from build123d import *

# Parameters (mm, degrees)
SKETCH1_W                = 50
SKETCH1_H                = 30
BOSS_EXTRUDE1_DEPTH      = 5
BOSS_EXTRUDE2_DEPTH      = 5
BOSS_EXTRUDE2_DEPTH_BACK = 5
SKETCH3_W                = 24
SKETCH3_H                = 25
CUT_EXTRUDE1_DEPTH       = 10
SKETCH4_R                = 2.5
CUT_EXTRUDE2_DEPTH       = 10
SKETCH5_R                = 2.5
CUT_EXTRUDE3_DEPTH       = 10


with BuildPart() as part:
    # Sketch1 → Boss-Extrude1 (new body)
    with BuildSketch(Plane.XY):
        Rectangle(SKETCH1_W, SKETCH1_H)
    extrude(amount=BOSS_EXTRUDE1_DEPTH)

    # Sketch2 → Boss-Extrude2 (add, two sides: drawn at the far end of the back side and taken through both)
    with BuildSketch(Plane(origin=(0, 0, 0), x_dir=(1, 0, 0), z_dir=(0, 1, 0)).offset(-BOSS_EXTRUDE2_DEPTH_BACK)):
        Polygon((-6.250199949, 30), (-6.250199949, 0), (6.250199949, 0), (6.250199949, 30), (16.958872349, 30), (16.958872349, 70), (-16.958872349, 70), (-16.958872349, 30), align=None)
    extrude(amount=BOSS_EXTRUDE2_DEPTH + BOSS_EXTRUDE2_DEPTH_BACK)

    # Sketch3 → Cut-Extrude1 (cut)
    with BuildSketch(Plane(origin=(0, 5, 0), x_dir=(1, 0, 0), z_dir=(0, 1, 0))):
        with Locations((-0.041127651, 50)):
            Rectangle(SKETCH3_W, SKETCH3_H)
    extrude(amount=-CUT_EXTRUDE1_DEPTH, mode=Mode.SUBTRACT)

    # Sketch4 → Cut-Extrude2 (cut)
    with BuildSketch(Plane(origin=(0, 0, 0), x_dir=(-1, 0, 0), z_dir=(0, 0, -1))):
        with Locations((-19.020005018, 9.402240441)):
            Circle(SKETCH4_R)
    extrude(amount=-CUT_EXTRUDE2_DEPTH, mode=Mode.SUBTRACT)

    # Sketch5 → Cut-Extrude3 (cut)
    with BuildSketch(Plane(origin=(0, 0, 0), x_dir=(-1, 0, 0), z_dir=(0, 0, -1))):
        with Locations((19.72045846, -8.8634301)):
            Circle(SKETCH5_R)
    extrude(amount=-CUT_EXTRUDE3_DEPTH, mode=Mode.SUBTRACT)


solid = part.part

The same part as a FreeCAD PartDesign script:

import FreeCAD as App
import Part
import Sketcher

doc = App.newDocument("Part")
body = doc.addObject("PartDesign::Body", "Body")

# Sketch on XY plane
sketch1 = doc.addObject("Sketcher::SketchObject", "Sketch")
body.addObject(sketch1)
sketch1.AttachmentSupport = (doc.XY_Plane, [""])
sketch1.MapMode = "FlatFace"
sketch1.addGeometry([
    Part.LineSegment(App.Vector(-25, 15, 0), App.Vector(-25, -15, 0)),
    Part.LineSegment(App.Vector(-25, -15, 0), App.Vector(25, -15, 0)),
    Part.LineSegment(App.Vector(25, -15, 0), App.Vector(25, 15, 0)),
    Part.LineSegment(App.Vector(25, 15, 0), App.Vector(-25, 15, 0)),
], False)
sketch1.addConstraint([
    Sketcher.Constraint("Coincident", 0, 2, 1, 1),
    Sketcher.Constraint("Coincident", 1, 2, 2, 1),
    Sketcher.Constraint("Coincident", 2, 2, 3, 1),
    Sketcher.Constraint("Coincident", 3, 2, 0, 1),
    Sketcher.Constraint("Vertical", 0),
    Sketcher.Constraint("Horizontal", 1),
    Sketcher.Constraint("Vertical", 2),
    Sketcher.Constraint("Horizontal", 3),
    Sketcher.Constraint("Symmetric", 0, 2, 2, 2, -1, 1),
    Sketcher.Constraint("DistanceX", 1, 1, 1, 2, 50.0),
    Sketcher.Constraint("DistanceY", 0, 2, 0, 1, 30.0),
])
pad1 = doc.addObject("PartDesign::Pad", "Pad")
body.addObject(pad1)
pad1.Profile = sketch1
pad1.Length = 5

# Sketch on XZ plane
sketch2 = doc.addObject("Sketcher::SketchObject", "Sketch001")
body.addObject(sketch2)
sketch2.AttachmentSupport = (doc.XZ_Plane, [""])
sketch2.MapMode = "FlatFace"
sketch2.addGeometry([
    Part.LineSegment(App.Vector(-6, -30, 0), App.Vector(-6, 0, 0)),  # 0
    Part.LineSegment(App.Vector(-6, 0, 0), App.Vector(6, 0, 0)),  # 1
    Part.LineSegment(App.Vector(6, 0, 0), App.Vector(6, -30, 0)),  # 2
    Part.LineSegment(App.Vector(6, -30, 0), App.Vector(17, -30, 0)),  # 3
    Part.LineSegment(App.Vector(17, -30, 0), App.Vector(17, -70, 0)),  # 4
    Part.LineSegment(App.Vector(17, -70, 0), App.Vector(-17, -70, 0)),  # 5
    Part.LineSegment(App.Vector(-17, -70, 0), App.Vector(-17, -30, 0)),  # 6
    Part.LineSegment(App.Vector(-17, -30, 0), App.Vector(-6, -30, 0)),  # 7
], False)
sketch2.addConstraint([
    Sketcher.Constraint("Coincident", 0, 2, 1, 1),
    Sketcher.Constraint("Coincident", 1, 2, 2, 1),
    Sketcher.Constraint("Coincident", 2, 2, 3, 1),
    Sketcher.Constraint("Coincident", 3, 2, 4, 1),
    Sketcher.Constraint("Coincident", 4, 2, 5, 1),
    Sketcher.Constraint("Coincident", 5, 2, 6, 1),
    Sketcher.Constraint("Coincident", 6, 2, 7, 1),
    Sketcher.Constraint("Coincident", 7, 2, 0, 1),
    Sketcher.Constraint("Vertical", 0),
    Sketcher.Constraint("Horizontal", 1),
    Sketcher.Constraint("Vertical", 2),
    Sketcher.Constraint("Horizontal", 3),
    Sketcher.Constraint("Vertical", 4),
    Sketcher.Constraint("Horizontal", 5),
    Sketcher.Constraint("Vertical", 6),
    Sketcher.Constraint("Horizontal", 7),
    Sketcher.Constraint("Symmetric", 0, 2, 1, 2, -1, 1),
    Sketcher.Constraint("Symmetric", 3, 2, 6, 2, -2),
    Sketcher.Constraint("DistanceY", 0, 1, 0, 2, 30.0),
    Sketcher.Constraint("DistanceY", 4, 2, 4, 1, 40.0),
    Sketcher.Constraint("DistanceX", 1, 1, 1, 2, 12.5004),
    Sketcher.Constraint("DistanceX", 3, 1, 3, 2, 10.708672),
])
pad2 = doc.addObject("PartDesign::Pad", "Pad001")
body.addObject(pad2)
pad2.Profile = sketch2
pad2.Type = "TwoLengths"
pad2.Length = 5
pad2.Length2 = 5
pad2.Reversed = True

# Sketch on XZ plane
sketch3 = doc.addObject("Sketcher::SketchObject", "Sketch002")
body.addObject(sketch3)
sketch3.AttachmentSupport = (doc.XZ_Plane, [""])
sketch3.MapMode = "FlatFace"
sketch3.AttachmentOffset = App.Placement(App.Vector(0, 0, -5), App.Rotation())
sketch3.addGeometry([
    Part.LineSegment(App.Vector(-12, -62, 0), App.Vector(-12, -38, 0)),
    Part.LineSegment(App.Vector(-12, -38, 0), App.Vector(12, -38, 0)),
    Part.LineSegment(App.Vector(12, -38, 0), App.Vector(12, -62, 0)),
    Part.LineSegment(App.Vector(12, -62, 0), App.Vector(-12, -62, 0)),
], False)
sketch3.addConstraint([
    Sketcher.Constraint("Coincident", 0, 2, 1, 1),
    Sketcher.Constraint("Coincident", 1, 2, 2, 1),
    Sketcher.Constraint("Coincident", 2, 2, 3, 1),
    Sketcher.Constraint("Coincident", 3, 2, 0, 1),
    Sketcher.Constraint("Vertical", 0),
    Sketcher.Constraint("Horizontal", 1),
    Sketcher.Constraint("Vertical", 2),
    Sketcher.Constraint("Horizontal", 3),
    Sketcher.Constraint("DistanceX", 1, 1, 1, 2, 24.0),
    Sketcher.Constraint("DistanceY", 0, 1, 0, 2, 25.0),
    Sketcher.Constraint("DistanceY", 0, 2, -1, 1, 37.5),
    Sketcher.Constraint("DistanceX", 0, 2, -1, 1, 12.041128),
])
pocket1 = doc.addObject("PartDesign::Pocket", "Pocket")
body.addObject(pocket1)
pocket1.Profile = sketch3
pocket1.Length = 10
pocket1.Reversed = True

# Sketch on XY plane
sketch4 = doc.addObject("Sketcher::SketchObject", "Sketch003")
body.addObject(sketch4)
sketch4.AttachmentSupport = (doc.XY_Plane, [""])
sketch4.MapMode = "FlatFace"
sketch4.addGeometry(Part.Circle(App.Vector(19, 9.4, 0), App.Vector(0, 0, 1), 2.5), False)
sketch4.addConstraint([
    Sketcher.Constraint("Diameter", 0, 5.0),
    Sketcher.Constraint("DistanceY", -1, 1, 0, 3, 9.40224),
    Sketcher.Constraint("DistanceX", -1, 1, 0, 3, 19.020005),
])
pocket2 = doc.addObject("PartDesign::Pocket", "Pocket001")
body.addObject(pocket2)
pocket2.Profile = sketch4
pocket2.Length = 10
pocket2.Reversed = True

# Sketch on XY plane
sketch5 = doc.addObject("Sketcher::SketchObject", "Sketch004")
body.addObject(sketch5)
sketch5.AttachmentSupport = (doc.XY_Plane, [""])
sketch5.MapMode = "FlatFace"
sketch5.addGeometry(Part.Circle(App.Vector(-19.7, -8.9, 0), App.Vector(0, 0, 1), 2.5), False)
sketch5.addConstraint([
    Sketcher.Constraint("Diameter", 0, 5.0),
    Sketcher.Constraint("DistanceX", 0, 3, -1, 1, 19.720458),
    Sketcher.Constraint("DistanceY", 0, 3, -1, 1, 8.86343),
])
pocket3 = doc.addObject("PartDesign::Pocket", "Pocket002")
body.addObject(pocket3)
pocket3.Profile = sketch5
pocket3.Length = 10
pocket3.Reversed = True

doc.recompute()
